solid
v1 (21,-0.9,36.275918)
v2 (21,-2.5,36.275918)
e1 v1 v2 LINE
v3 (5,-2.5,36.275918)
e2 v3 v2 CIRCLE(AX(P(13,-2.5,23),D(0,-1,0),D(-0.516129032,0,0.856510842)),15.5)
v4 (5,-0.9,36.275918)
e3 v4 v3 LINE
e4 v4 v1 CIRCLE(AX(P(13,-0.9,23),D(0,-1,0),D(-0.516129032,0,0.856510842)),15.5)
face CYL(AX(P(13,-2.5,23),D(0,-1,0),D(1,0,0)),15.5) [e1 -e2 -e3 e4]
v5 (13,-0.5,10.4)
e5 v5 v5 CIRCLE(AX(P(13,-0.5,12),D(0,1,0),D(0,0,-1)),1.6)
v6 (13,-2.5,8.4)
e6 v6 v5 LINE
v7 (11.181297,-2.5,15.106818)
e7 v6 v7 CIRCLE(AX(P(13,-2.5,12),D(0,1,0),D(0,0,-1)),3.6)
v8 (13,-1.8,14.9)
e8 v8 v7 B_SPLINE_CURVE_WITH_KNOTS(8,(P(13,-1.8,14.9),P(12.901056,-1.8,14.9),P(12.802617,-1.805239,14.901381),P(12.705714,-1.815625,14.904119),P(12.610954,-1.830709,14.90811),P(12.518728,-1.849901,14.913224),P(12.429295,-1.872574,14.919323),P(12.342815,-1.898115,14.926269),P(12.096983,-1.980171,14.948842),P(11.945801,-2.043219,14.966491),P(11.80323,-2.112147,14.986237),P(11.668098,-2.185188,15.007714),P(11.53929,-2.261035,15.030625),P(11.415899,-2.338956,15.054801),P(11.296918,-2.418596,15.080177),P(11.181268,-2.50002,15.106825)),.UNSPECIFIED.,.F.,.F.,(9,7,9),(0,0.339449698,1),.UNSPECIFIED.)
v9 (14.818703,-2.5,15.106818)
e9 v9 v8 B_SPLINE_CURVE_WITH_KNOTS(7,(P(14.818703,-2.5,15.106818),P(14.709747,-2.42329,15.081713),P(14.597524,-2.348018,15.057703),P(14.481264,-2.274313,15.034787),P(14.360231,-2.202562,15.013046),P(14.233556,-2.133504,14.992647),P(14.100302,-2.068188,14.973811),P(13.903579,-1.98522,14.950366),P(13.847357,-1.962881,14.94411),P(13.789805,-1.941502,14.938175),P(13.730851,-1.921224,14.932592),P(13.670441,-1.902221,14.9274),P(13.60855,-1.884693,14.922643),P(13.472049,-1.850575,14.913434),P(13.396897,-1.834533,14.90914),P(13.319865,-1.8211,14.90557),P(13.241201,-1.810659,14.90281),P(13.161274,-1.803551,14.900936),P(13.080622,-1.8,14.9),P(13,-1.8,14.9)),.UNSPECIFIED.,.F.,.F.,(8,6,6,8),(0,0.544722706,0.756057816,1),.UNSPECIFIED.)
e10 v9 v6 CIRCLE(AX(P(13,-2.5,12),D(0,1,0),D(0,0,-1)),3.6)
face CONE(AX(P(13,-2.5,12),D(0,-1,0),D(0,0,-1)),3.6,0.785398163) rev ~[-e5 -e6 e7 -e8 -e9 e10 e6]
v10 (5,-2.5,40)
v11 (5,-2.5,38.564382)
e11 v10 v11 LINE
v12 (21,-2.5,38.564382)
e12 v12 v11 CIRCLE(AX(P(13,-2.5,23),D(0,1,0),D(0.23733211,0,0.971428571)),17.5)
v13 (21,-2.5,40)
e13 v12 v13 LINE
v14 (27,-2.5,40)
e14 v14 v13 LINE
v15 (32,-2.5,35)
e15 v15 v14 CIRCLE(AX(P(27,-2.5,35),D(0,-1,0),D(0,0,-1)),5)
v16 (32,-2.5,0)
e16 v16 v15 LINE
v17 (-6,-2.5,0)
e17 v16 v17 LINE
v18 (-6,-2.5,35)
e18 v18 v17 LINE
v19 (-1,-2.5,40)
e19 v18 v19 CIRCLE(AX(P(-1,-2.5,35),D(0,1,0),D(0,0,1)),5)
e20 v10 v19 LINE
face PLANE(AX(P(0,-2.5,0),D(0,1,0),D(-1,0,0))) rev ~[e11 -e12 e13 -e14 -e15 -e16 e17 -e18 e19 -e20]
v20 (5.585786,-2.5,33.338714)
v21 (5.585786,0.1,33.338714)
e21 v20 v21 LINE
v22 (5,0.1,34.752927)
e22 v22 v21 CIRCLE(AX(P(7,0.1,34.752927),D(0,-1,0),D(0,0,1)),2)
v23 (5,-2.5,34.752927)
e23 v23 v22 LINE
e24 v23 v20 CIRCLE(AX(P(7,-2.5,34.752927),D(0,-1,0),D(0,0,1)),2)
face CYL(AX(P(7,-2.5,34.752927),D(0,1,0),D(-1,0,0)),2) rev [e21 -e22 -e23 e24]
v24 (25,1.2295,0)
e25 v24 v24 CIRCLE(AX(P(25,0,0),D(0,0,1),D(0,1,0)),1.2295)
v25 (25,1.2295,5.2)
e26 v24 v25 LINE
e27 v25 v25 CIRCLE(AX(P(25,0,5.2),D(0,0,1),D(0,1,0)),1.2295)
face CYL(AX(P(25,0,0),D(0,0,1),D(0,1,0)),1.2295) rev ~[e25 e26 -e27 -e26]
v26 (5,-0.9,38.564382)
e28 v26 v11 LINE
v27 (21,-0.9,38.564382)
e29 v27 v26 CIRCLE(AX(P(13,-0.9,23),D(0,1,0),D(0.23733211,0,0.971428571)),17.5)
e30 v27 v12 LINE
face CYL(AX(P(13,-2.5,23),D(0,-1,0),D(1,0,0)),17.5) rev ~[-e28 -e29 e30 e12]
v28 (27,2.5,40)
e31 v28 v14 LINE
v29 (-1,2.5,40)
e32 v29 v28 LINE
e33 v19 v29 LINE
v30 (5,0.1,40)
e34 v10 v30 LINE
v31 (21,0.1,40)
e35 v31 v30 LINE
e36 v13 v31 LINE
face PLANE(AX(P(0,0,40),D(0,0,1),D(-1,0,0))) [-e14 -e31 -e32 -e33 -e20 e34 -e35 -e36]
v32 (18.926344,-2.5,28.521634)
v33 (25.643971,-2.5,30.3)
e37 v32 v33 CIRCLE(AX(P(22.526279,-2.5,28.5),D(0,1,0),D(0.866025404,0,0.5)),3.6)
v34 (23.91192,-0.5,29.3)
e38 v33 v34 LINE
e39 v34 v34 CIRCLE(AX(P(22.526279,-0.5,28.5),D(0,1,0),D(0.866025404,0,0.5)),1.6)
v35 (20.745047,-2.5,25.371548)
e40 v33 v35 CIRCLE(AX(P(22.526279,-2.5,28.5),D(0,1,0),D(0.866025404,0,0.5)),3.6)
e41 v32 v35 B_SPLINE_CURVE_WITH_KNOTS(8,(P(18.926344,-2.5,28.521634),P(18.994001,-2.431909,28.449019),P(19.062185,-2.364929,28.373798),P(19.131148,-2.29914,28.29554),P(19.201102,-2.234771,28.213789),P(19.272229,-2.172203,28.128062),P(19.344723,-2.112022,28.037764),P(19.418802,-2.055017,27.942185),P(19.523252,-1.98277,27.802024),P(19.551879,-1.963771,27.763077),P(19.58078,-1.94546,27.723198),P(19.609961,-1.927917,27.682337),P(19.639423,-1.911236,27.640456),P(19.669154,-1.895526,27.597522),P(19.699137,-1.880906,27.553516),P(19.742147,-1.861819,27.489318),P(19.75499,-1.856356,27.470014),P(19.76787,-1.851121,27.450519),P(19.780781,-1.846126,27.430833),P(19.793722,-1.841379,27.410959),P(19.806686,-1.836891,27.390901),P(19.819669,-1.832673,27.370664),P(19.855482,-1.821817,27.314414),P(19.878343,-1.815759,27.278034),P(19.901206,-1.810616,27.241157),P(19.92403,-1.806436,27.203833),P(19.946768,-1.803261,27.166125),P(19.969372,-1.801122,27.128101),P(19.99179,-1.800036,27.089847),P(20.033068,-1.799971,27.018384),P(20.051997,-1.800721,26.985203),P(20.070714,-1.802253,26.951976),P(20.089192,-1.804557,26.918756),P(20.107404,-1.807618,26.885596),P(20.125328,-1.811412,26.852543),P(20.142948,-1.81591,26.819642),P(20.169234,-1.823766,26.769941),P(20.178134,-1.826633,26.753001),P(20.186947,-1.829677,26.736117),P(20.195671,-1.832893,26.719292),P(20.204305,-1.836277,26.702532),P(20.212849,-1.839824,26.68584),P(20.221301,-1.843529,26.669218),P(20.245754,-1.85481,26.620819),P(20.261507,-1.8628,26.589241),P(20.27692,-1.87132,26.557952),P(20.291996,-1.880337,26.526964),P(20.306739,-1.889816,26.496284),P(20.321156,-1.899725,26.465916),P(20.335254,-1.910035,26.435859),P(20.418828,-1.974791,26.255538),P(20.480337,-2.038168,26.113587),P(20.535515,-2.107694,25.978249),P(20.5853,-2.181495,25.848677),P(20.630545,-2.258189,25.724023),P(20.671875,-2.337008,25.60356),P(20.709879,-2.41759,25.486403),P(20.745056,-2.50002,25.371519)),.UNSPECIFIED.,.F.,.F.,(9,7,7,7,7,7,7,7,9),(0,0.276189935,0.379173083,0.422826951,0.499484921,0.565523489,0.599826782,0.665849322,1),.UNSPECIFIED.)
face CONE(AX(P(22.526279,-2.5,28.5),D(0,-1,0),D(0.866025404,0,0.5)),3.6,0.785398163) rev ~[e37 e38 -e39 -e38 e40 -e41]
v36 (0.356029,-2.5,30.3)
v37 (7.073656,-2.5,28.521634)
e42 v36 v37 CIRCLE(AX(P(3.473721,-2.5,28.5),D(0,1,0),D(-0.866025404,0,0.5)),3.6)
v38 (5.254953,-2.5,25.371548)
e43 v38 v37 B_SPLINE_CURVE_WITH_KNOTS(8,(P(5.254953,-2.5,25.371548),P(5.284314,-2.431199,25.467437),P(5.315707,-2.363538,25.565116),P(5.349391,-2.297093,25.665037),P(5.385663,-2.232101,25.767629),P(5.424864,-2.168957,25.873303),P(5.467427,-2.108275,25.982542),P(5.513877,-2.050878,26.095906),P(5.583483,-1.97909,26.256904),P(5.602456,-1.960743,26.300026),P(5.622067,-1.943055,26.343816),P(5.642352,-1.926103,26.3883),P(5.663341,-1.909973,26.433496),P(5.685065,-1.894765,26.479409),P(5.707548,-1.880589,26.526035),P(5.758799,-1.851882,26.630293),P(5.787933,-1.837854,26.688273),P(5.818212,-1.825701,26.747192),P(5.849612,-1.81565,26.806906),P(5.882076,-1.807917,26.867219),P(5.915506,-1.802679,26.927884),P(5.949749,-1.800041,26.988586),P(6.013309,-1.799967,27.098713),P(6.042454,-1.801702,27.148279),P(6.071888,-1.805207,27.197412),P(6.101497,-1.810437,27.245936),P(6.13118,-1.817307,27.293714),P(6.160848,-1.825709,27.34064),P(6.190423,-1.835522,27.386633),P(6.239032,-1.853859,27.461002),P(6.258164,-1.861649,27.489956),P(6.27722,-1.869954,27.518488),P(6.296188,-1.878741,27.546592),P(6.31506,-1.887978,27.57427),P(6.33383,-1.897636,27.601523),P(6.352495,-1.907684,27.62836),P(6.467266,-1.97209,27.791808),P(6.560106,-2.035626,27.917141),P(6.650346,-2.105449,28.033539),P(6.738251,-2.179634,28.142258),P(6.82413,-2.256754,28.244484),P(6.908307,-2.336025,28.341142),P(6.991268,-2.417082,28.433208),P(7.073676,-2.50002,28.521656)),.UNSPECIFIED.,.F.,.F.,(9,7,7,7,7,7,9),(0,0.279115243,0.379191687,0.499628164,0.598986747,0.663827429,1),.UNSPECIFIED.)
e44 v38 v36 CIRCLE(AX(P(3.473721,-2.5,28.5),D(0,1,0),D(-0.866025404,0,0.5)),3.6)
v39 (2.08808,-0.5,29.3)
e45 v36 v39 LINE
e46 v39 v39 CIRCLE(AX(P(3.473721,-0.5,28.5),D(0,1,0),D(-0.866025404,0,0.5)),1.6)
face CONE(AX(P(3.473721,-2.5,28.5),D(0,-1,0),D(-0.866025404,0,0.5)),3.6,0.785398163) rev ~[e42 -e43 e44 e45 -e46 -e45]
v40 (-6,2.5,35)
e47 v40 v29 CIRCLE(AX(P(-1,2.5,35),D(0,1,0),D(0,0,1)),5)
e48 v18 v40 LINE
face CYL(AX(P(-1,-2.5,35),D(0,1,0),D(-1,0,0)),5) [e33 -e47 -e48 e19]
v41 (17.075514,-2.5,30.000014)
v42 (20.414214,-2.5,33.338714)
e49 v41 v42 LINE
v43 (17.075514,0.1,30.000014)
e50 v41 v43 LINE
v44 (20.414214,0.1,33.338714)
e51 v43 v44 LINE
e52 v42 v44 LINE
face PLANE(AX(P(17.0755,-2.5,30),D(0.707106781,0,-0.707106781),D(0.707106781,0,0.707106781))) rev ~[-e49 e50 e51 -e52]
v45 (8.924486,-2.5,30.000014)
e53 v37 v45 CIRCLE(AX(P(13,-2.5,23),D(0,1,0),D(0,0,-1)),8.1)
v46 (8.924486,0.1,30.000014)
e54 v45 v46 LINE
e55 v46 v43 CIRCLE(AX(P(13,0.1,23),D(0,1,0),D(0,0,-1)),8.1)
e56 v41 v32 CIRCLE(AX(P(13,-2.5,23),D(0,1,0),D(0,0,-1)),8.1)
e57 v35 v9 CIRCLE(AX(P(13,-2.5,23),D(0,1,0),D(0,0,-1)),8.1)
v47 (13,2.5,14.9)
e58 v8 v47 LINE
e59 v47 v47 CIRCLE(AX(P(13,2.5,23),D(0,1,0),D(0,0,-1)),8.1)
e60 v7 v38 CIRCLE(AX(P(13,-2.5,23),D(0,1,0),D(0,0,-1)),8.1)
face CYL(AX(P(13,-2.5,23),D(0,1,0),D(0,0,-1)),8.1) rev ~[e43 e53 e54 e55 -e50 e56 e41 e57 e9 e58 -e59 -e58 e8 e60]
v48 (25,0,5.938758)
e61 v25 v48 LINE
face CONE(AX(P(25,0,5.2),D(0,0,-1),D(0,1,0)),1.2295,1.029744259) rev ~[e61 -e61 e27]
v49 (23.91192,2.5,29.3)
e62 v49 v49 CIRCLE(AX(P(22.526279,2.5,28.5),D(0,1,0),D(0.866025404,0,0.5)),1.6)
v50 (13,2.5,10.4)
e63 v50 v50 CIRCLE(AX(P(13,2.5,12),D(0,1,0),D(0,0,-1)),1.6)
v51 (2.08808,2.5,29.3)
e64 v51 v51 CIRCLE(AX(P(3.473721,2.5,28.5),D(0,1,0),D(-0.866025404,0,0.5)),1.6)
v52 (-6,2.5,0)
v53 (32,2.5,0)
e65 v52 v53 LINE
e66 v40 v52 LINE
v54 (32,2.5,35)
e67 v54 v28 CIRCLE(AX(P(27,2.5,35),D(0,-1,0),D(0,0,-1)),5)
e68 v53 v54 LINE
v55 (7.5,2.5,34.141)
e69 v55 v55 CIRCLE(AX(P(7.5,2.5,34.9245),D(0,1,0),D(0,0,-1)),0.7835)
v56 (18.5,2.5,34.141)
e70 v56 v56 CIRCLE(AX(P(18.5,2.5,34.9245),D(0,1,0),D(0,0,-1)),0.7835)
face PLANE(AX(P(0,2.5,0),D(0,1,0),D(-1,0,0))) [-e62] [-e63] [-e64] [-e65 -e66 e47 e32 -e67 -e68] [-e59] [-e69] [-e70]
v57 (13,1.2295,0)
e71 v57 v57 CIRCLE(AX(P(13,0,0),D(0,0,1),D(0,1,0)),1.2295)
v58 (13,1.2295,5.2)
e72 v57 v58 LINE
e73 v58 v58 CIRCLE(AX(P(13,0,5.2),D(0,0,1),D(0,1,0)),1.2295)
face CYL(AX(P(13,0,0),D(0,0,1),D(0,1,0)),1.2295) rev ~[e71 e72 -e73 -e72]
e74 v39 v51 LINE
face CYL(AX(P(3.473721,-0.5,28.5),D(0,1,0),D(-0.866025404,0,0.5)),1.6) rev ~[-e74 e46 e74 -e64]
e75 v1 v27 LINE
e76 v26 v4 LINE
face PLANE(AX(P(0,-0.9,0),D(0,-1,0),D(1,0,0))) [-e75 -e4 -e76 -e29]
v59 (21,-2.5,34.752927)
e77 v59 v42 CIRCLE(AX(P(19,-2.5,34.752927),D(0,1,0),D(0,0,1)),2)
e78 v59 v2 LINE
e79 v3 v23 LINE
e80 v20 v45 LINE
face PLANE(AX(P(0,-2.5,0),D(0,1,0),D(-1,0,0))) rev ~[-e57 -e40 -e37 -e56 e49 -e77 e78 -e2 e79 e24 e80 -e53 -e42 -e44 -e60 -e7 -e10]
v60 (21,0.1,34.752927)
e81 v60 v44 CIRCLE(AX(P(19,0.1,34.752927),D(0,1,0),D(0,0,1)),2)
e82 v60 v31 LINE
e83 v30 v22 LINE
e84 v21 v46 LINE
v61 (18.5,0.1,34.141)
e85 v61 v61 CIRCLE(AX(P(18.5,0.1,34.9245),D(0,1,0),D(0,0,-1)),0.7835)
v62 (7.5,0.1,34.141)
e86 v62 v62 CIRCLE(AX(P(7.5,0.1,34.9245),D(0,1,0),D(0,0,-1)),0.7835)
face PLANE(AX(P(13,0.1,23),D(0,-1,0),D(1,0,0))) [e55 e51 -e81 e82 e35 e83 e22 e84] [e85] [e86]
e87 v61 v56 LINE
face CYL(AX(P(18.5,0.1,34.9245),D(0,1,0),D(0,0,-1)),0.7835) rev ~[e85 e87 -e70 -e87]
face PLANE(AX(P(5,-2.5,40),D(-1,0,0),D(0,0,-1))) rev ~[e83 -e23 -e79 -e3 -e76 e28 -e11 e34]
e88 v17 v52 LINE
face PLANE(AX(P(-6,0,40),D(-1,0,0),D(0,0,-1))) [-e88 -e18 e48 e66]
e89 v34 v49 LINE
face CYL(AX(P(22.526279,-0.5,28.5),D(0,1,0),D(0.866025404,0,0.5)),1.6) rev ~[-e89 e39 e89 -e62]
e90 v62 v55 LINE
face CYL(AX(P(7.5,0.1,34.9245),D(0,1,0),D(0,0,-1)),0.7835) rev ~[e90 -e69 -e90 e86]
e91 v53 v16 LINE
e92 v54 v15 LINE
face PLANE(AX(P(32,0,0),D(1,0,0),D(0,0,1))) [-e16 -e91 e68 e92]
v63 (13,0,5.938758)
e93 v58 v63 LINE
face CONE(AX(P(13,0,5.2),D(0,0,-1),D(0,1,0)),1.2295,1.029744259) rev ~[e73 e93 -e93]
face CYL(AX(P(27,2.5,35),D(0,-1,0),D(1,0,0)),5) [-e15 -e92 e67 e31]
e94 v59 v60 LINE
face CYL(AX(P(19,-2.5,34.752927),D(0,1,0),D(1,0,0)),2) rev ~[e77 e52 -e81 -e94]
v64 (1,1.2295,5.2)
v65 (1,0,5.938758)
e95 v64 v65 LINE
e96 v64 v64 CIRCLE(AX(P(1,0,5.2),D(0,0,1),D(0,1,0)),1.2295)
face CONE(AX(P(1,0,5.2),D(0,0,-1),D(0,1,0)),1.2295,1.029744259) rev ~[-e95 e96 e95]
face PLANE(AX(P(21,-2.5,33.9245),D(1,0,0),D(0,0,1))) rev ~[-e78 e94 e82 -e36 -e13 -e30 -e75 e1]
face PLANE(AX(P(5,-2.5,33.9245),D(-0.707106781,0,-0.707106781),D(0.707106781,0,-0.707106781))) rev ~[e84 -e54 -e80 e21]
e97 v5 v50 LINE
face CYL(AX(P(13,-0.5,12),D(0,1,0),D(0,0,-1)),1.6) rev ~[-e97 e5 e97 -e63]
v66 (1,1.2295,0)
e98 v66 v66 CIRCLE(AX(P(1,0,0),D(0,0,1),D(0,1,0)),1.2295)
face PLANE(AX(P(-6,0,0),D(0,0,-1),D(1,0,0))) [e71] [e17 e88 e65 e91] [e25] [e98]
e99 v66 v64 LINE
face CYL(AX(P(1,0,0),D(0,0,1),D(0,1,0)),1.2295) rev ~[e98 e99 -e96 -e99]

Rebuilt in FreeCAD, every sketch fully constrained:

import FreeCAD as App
import Part
import Sketcher

V = App.Vector
Q = App.Units.Quantity


def edges_at(feature, points):
    """Names of the edges that pass closest to the given points."""
    edges = feature.Shape.Edges
    near = lambda p: min(range(len(edges)), key=lambda i: edges[i].distToShape(Part.Vertex(*p))[0])
    return sorted({f"Edge{near(p) + 1}" for p in points})


def add_polygon(sketch, points):
    """Adds a closed chain of lines whose ends are joined by coincident constraints."""
    first, n = sketch.GeometryCount, len(points)
    for a, b in zip(points, points[1:] + points[:1]):
        sketch.addGeometry(Part.LineSegment(App.Vector(*a, 0), App.Vector(*b, 0)), False)
    for i in range(n):
        sketch.addConstraint(Sketcher.Constraint("Coincident", first + i, 2, first + (i + 1) % n, 1))

doc = App.newDocument("Part")
body = doc.addObject("PartDesign::Body", "Body")

sketch1 = body.newObject("Sketcher::SketchObject", "Sketch")
sketch1.AttachmentSupport = (doc.getObject("XZ_Plane"), [""])
sketch1.MapMode = "FlatFace"
add_polygon(sketch1, [(-6, 0), (-6, 40), (32, 40), (32, 0)])
sketch1.addGeometry(Part.Circle(V(13, 23, 0), V(0, 0, 1), 0.5), False)
sketch1.addConstraint(Sketcher.Constraint("Vertical", 0))
sketch1.addConstraint(Sketcher.Constraint("Horizontal", 1))
sketch1.addConstraint(Sketcher.Constraint("Vertical", 2))
sketch1.addConstraint(Sketcher.Constraint("Horizontal", 3))
sketch1.addConstraint(Sketcher.Constraint("PointOnObject", 2, 2, -1))
sketch1.addConstraint(Sketcher.Constraint("Diameter", 4, Q("1 mm")))
sketch1.addConstraint(Sketcher.Constraint("DistanceX", 1, 1, 1, 2, Q("38 mm")))
sketch1.addConstraint(Sketcher.Constraint("DistanceY", 0, 1, 0, 2, Q("40 mm")))
sketch1.addConstraint(Sketcher.Constraint("DistanceX", -1, 1, 4, 3, Q("13 mm")))
sketch1.addConstraint(Sketcher.Constraint("DistanceY", -1, 1, 4, 3, Q("23 mm")))
sketch1.addConstraint(Sketcher.Constraint("DistanceX", 0, 2, -1, 1, Q("6 mm")))
pad1 = body.newObject("PartDesign::Pad", "Pad")
pad1.Profile = sketch1
pad1.Length = 5
pad1.Midplane = True

sketch2 = body.newObject("Sketcher::SketchObject", "Sketch001")
sketch2.AttachmentSupport = (doc.getObject("XZ_Plane"), [""])
sketch2.MapMode = "FlatFace"
sketch2.AttachmentOffset = App.Placement(V(0, 0, 2.5), App.Rotation())
sketch2.addGeometry(Part.Circle(V(13, 23, 0), V(0, 0, 1), 8), False)
sketch2.addConstraint(Sketcher.Constraint("Diameter", 0, Q("16.2 mm")))
sketch2.addConstraint(Sketcher.Constraint("DistanceX", -1, 1, 0, 3, Q("13 mm")))
sketch2.addConstraint(Sketcher.Constraint("DistanceY", -1, 1, 0, 3, Q("23 mm")))
doc.recompute()
hole = body.newObject("PartDesign::Hole", "Hole")
hole.Profile = sketch2
hole.ThreadType = "None"
hole.Diameter = 16.2
hole.DepthType = "ThroughAll"

sketch3 = body.newObject("Sketcher::SketchObject", "Sketch002")
sketch3.AttachmentSupport = (doc.getObject("XZ_Plane"), [""])
sketch3.MapMode = "FlatFace"
sketch3.AttachmentOffset = App.Placement(V(0, 0, 2.5), App.Rotation())
sketch3.addGeometry(Part.Circle(V(13, 12, 0), V(0, 0, 1), 1.6), False)
sketch3.addConstraint(Sketcher.Constraint("Diameter", 0, Q("3.2 mm")))
sketch3.addConstraint(Sketcher.Constraint("DistanceX", -1, 1, 0, 3, Q("13 mm")))
sketch3.addConstraint(Sketcher.Constraint("DistanceY", -1, 1, 0, 3, Q("12 mm")))
doc.recompute()
hole2 = body.newObject("PartDesign::Hole", "Hole001")
hole2.Profile = sketch3
hole2.ThreadType = "None"
hole2.Diameter = 3.2
hole2.DepthType = "ThroughAll"
hole2.HoleCutType = "Countersink"
hole2.HoleCutDiameter = 7.2
hole2.HoleCutCountersinkAngle = 90
doc.recompute()

datumline = body.newObject("PartDesign::Line", "DatumLine")
datumline.Placement = App.Placement(V(13, 0, 23), App.Rotation(V(0, 0, 1), V(0, 1, 0)))
polarpattern = body.newObject("PartDesign::PolarPattern", "PolarPattern")
polarpattern.Originals = [hole2]
polarpattern.Axis = (datumline, [""])
polarpattern.Angle = 360
polarpattern.Occurrences = 3
body.Tip = polarpattern

sketch4 = body.newObject("Sketcher::SketchObject", "Sketch003")
sketch4.AttachmentSupport = (doc.getObject("XY_Plane"), [""])
sketch4.MapMode = "FlatFace"
sketch4.addGeometry(Part.Circle(V(1, 0, 0), V(0, 0, 1), 1.2), False)
sketch4.addGeometry(Part.Circle(V(25, 0, 0), V(0, 0, 1), 1.2), False)
sketch4.addGeometry(Part.Circle(V(13, 0, 0), V(0, 0, 1), 1.2), False)
sketch4.addConstraint(Sketcher.Constraint("Equal", 0, 1))
sketch4.addConstraint(Sketcher.Constraint("Equal", 1, 2))
sketch4.addConstraint(Sketcher.Constraint("PointOnObject", 0, 3, -1))
sketch4.addConstraint(Sketcher.Constraint("PointOnObject", 1, 3, -1))
sketch4.addConstraint(Sketcher.Constraint("PointOnObject", 2, 3, -1))
sketch4.addConstraint(Sketcher.Constraint("Diameter", 0, Q("2.459 mm")))
sketch4.addConstraint(Sketcher.Constraint("DistanceX", -1, 1, 0, 3, Q("1 mm")))
sketch4.addConstraint(Sketcher.Constraint("DistanceX", -1, 1, 1, 3, Q("25 mm")))
sketch4.addConstraint(Sketcher.Constraint("DistanceX", -1, 1, 2, 3, Q("13 mm")))
doc.recompute()
hole3 = body.newObject("PartDesign::Hole", "Hole002")
hole3.Profile = sketch4
hole3.ThreadType = "None"
hole3.Diameter = 2.459
hole3.DepthType = "Dimension"
hole3.Depth = 5.2
hole3.DrillPoint = "Angled"
hole3.DrillPointAngle = 118
hole3.Reversed = True
doc.recompute()

fillet = body.newObject("PartDesign::Fillet", "Fillet")
fillet.Base = (hole3, edges_at(hole3, [(32, 0, 40), (-6, 0, 40)]))
fillet.Radius = 5

sketch5 = body.newObject("Sketcher::SketchObject", "Sketch004")
sketch5.AttachmentSupport = (doc.getObject("XZ_Plane"), [""])
sketch5.MapMode = "FlatFace"
sketch5.AttachmentOffset = App.Placement(V(0, 0, 2.5), App.Rotation())
sketch5.addGeometry(Part.Circle(V(13, 23, 0), V(0, 0, 1), 18), False)
sketch5.addGeometry(Part.Circle(V(13, 23, 0), V(0, 0, 1), 16), False)
sketch5.addConstraint(Sketcher.Constraint("Coincident", 1, 3, 0, 3))
sketch5.addConstraint(Sketcher.Constraint("Diameter", 0, Q("35 mm")))
sketch5.addConstraint(Sketcher.Constraint("Diameter", 1, Q("31 mm")))
sketch5.addConstraint(Sketcher.Constraint("DistanceX", -1, 1, 0, 3, Q("13 mm")))
sketch5.addConstraint(Sketcher.Constraint("DistanceY", -1, 1, 0, 3, Q("23 mm")))
pocket1 = body.newObject("PartDesign::Pocket", "Pocket")
pocket1.Profile = sketch5
pocket1.Length = 1.6

sketch6 = body.newObject("Sketcher::SketchObject", "Sketch005")
sketch6.AttachmentSupport = (doc.getObject("XZ_Plane"), [""])
sketch6.MapMode = "FlatFace"
sketch6.AttachmentOffset = App.Placement(V(0, 0, 2.5), App.Rotation())
add_polygon(sketch6, [(5, 40), (5, 34), (9, 30), (17, 30), (21, 34), (21, 40)])
sketch6.addConstraint(Sketcher.Constraint("Vertical", 0))
sketch6.addConstraint(Sketcher.Constraint("Horizontal", 2))
sketch6.addConstraint(Sketcher.Constraint("Vertical", 4))
sketch6.addConstraint(Sketcher.Constraint("Horizontal", 5))
sketch6.addConstraint(Sketcher.Constraint("Perpendicular", 1, 3))
sketch6.addConstraint(Sketcher.Constraint("Horizontal", 0, 2, 3, 2))
sketch6.addConstraint(Sketcher.Constraint("Equal", 1, 3))
sketch6.addConstraint(Sketcher.Constraint("DistanceX", 5, 2, 5, 1, Q("16 mm")))
sketch6.addConstraint(Sketcher.Constraint("DistanceX", -1, 1, 0, 2, Q("5 mm")))
sketch6.addConstraint(Sketcher.Constraint("DistanceY", -1, 1, 1, 2, Q("30 mm")))
sketch6.addConstraint(Sketcher.Constraint("DistanceY", -1, 1, 4, 2, Q("40 mm")))
sketch6.addConstraint(Sketcher.Constraint("Distance", 1, Q("5.55 mm")))
pocket2 = body.newObject("PartDesign::Pocket", "Pocket001")
pocket2.Profile = sketch6
pocket2.Length = 2.6

sketch7 = body.newObject("Sketcher::SketchObject", "Sketch006")
sketch7.AttachmentSupport = (doc.getObject("XZ_Plane"), [""])
sketch7.MapMode = "FlatFace"
sketch7.AttachmentOffset = App.Placement(V(0, 0, -0.1), App.Rotation())
sketch7.addGeometry(Part.Circle(V(7.5, 34.9, 0), V(0, 0, 1), 0.8), False)
sketch7.addGeometry(Part.Circle(V(18.5, 34.9, 0), V(0, 0, 1), 0.8), False)
sketch7.addConstraint(Sketcher.Constraint("Equal", 0, 1))
sketch7.addConstraint(Sketcher.Constraint("Horizontal", 0, 3, 1, 3))
sketch7.addConstraint(Sketcher.Constraint("Diameter", 0, Q("1.567 mm")))
sketch7.addConstraint(Sketcher.Constraint("DistanceX", 0, 3, 1, 3, Q("11 mm")))
sketch7.addConstraint(Sketcher.Constraint("DistanceX", -1, 1, 0, 3, Q("7.5 mm")))
sketch7.addConstraint(Sketcher.Constraint("DistanceY", -1, 1, 0, 3, Q("34.9245 mm")))
doc.recompute()
hole4 = body.newObject("PartDesign::Hole", "Hole003")
hole4.Profile = sketch7
hole4.ThreadType = "None"
hole4.Diameter = 1.567
hole4.DepthType = "ThroughAll"
doc.recompute()

fillet2 = body.newObject("PartDesign::Fillet", "Fillet001")
fillet2.Base = (hole4, edges_at(hole4, [(5, -1.2, 33.925), (21, -1.2, 33.925)]))
fillet2.Radius = 2

doc.recompute()
